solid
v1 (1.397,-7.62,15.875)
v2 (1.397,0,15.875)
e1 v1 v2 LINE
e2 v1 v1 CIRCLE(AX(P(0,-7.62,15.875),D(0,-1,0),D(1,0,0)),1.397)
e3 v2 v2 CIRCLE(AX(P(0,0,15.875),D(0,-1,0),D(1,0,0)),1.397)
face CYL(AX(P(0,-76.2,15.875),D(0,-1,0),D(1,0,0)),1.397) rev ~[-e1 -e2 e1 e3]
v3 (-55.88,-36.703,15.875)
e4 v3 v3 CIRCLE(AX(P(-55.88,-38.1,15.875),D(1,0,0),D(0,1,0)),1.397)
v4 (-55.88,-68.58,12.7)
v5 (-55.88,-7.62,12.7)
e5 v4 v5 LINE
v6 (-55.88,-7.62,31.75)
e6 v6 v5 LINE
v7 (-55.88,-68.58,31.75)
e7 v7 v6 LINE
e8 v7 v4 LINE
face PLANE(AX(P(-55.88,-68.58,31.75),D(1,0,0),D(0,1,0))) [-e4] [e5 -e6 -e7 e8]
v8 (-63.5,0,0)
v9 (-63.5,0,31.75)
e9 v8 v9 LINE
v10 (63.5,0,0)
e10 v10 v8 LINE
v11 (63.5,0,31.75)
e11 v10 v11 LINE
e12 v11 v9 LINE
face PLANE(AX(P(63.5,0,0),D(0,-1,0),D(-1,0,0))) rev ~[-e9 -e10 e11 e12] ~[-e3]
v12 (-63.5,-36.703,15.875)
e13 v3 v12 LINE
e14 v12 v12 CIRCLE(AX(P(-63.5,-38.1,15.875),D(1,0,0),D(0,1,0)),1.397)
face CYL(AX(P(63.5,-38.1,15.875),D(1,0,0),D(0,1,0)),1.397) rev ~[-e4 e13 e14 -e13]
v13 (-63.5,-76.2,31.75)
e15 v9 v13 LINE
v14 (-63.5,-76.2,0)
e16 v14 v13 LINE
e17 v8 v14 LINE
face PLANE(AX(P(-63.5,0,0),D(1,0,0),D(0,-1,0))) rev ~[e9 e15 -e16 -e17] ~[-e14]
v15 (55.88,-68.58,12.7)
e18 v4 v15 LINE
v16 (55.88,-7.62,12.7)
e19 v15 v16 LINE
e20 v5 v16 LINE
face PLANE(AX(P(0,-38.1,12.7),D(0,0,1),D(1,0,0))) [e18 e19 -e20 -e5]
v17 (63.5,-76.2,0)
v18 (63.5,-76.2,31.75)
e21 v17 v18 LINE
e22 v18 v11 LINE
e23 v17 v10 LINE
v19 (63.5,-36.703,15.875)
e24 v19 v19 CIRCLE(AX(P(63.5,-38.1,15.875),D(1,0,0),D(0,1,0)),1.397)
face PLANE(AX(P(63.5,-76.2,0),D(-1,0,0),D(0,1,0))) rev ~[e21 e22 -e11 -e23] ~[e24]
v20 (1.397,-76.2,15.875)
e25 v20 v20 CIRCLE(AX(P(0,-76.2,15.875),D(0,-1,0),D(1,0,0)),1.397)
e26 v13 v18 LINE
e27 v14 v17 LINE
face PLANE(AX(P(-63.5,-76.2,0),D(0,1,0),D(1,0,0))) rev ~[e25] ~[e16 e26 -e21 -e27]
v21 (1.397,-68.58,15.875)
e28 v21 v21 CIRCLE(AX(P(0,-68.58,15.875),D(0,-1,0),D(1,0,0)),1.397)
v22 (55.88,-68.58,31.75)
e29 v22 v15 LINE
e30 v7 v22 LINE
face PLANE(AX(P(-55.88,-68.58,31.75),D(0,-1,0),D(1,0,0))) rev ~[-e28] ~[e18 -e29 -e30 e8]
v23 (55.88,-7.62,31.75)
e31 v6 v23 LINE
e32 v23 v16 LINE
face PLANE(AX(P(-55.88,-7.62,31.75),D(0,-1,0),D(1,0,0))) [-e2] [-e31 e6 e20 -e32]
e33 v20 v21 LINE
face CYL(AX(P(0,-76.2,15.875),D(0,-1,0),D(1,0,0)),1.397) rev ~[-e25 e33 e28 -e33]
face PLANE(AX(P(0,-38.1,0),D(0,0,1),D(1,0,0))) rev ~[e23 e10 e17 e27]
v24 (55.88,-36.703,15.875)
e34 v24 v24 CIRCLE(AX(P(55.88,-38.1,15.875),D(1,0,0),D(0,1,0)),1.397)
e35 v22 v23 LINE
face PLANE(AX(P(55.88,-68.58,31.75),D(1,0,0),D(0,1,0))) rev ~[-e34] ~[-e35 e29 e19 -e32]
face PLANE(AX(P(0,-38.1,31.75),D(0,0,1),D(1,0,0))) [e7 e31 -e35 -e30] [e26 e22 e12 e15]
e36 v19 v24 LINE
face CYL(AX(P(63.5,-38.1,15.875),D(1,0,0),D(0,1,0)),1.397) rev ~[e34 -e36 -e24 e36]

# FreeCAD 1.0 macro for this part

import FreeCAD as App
import Part
import Sketcher
from FreeCAD import Vector
Q = App.Units.Quantity


def add_polygon(sketch, points):
    """Adds a closed chain of lines whose ends are joined by coincident constraints."""
    first, n = sketch.GeometryCount, len(points)
    for a, b in zip(points, points[1:] + points[:1]):
        sketch.addGeometry(Part.LineSegment(App.Vector(*a, 0), App.Vector(*b, 0)), False)
    for i in range(n):
        sketch.addConstraint(Sketcher.Constraint("Coincident", first + i, 2, first + (i + 1) % n, 1))

doc = App.newDocument("Part")
body = doc.addObject("PartDesign::Body", "Body")

# Sketch on XY plane
sketch1 = body.newObject("Sketcher::SketchObject", "Sketch")
sketch1.AttachmentSupport = (doc.getObject("XY_Plane"), [""])
sketch1.MapMode = "FlatFace"
add_polygon(sketch1, [(64, 0), (-64, 0), (-64, -76), (64, -76)])  # lines 0-3
sketch1.addConstraint(Sketcher.Constraint("Horizontal", 0))
sketch1.addConstraint(Sketcher.Constraint("Vertical", 1))
sketch1.addConstraint(Sketcher.Constraint("Horizontal", 2))
sketch1.addConstraint(Sketcher.Constraint("Vertical", 3))
sketch1.addConstraint(Sketcher.Constraint("Symmetric", 0, 2, 3, 2, -1, 1))
sketch1.addConstraint(Sketcher.Constraint("DistanceX", 0, 2, 0, 1, Q("5 in")))
sketch1.addConstraint(Sketcher.Constraint("DistanceY", 1, 2, 1, 1, Q("3 in")))
pad1 = body.newObject("PartDesign::Pad", "Pad")
pad1.Profile = sketch1
pad1.Length = Q("1.25 in")

# Sketch on XY plane
sketch2 = body.newObject("Sketcher::SketchObject", "Sketch001")
sketch2.AttachmentSupport = (doc.getObject("XY_Plane"), [""])
sketch2.MapMode = "FlatFace"
sketch2.AttachmentOffset = App.Placement(Vector(0, 0, 1.25 * 25.4), App.Rotation())
add_polygon(sketch2, [(-56, -8), (-56, -69), (56, -69), (56, -8)])  # lines 0-3
sketch2.addConstraint(Sketcher.Constraint("Vertical", 0))
sketch2.addConstraint(Sketcher.Constraint("Horizontal", 1))
sketch2.addConstraint(Sketcher.Constraint("Vertical", 2))
sketch2.addConstraint(Sketcher.Constraint("Horizontal", 3))
sketch2.addConstraint(Sketcher.Constraint("DistanceX", 1, 1, 1, 2, Q("4.4 in")))
sketch2.addConstraint(Sketcher.Constraint("DistanceY", 0, 2, 0, 1, Q("2.4 in")))
sketch2.addConstraint(Sketcher.Constraint("DistanceX", 0, 2, -1, 1, Q("2.2 in")))
sketch2.addConstraint(Sketcher.Constraint("DistanceY", 0, 2, -1, 1, Q("2.7 in")))
pocket1 = body.newObject("PartDesign::Pocket", "Pocket")
pocket1.Profile = sketch2
pocket1.Length = Q("0.75 in")

# Sketch on YZ plane
sketch3 = body.newObject("Sketcher::SketchObject", "Sketch002")
sketch3.AttachmentSupport = (doc.getObject("YZ_Plane"), [""])
sketch3.MapMode = "FlatFace"
sketch3.AttachmentOffset = App.Placement(Vector(0, 0, 2.5 * 25.4), App.Rotation())
sketch3.addGeometry(Part.Circle(Vector(-38.1, 15.9, 0), Vector(0, 0, 1), 1.4), False)
sketch3.addConstraint(Sketcher.Constraint("Diameter", 0, Q("0.11 in")))
sketch3.addConstraint(Sketcher.Constraint("DistanceX", 0, 3, -1, 1, Q("1.5 in")))
sketch3.addConstraint(Sketcher.Constraint("DistanceY", -1, 1, 0, 3, Q("0.625 in")))
pocket2 = body.newObject("PartDesign::Pocket", "Pocket001")
pocket2.Profile = sketch3
pocket2.Type = "ThroughAll"

# Sketch on XZ plane
sketch4 = body.newObject("Sketcher::SketchObject", "Sketch003")
sketch4.AttachmentSupport = (doc.getObject("XZ_Plane"), [""])
sketch4.MapMode = "FlatFace"
sketch4.AttachmentOffset = App.Placement(Vector(0, 0, 3 * 25.4), App.Rotation())
sketch4.addGeometry(Part.Circle(Vector(0, 15.9, 0), Vector(0, 0, 1), 1.4), False)
sketch4.addConstraint(Sketcher.Constraint("PointOnObject", 0, 3, -2))
sketch4.addConstraint(Sketcher.Constraint("Diameter", 0, Q("0.11 in")))
sketch4.addConstraint(Sketcher.Constraint("DistanceY", -1, 1, 0, 3, Q("0.625 in")))
pocket3 = body.newObject("PartDesign::Pocket", "Pocket002")
pocket3.Profile = sketch4
pocket3.Type = "ThroughAll"

doc.recompute()
